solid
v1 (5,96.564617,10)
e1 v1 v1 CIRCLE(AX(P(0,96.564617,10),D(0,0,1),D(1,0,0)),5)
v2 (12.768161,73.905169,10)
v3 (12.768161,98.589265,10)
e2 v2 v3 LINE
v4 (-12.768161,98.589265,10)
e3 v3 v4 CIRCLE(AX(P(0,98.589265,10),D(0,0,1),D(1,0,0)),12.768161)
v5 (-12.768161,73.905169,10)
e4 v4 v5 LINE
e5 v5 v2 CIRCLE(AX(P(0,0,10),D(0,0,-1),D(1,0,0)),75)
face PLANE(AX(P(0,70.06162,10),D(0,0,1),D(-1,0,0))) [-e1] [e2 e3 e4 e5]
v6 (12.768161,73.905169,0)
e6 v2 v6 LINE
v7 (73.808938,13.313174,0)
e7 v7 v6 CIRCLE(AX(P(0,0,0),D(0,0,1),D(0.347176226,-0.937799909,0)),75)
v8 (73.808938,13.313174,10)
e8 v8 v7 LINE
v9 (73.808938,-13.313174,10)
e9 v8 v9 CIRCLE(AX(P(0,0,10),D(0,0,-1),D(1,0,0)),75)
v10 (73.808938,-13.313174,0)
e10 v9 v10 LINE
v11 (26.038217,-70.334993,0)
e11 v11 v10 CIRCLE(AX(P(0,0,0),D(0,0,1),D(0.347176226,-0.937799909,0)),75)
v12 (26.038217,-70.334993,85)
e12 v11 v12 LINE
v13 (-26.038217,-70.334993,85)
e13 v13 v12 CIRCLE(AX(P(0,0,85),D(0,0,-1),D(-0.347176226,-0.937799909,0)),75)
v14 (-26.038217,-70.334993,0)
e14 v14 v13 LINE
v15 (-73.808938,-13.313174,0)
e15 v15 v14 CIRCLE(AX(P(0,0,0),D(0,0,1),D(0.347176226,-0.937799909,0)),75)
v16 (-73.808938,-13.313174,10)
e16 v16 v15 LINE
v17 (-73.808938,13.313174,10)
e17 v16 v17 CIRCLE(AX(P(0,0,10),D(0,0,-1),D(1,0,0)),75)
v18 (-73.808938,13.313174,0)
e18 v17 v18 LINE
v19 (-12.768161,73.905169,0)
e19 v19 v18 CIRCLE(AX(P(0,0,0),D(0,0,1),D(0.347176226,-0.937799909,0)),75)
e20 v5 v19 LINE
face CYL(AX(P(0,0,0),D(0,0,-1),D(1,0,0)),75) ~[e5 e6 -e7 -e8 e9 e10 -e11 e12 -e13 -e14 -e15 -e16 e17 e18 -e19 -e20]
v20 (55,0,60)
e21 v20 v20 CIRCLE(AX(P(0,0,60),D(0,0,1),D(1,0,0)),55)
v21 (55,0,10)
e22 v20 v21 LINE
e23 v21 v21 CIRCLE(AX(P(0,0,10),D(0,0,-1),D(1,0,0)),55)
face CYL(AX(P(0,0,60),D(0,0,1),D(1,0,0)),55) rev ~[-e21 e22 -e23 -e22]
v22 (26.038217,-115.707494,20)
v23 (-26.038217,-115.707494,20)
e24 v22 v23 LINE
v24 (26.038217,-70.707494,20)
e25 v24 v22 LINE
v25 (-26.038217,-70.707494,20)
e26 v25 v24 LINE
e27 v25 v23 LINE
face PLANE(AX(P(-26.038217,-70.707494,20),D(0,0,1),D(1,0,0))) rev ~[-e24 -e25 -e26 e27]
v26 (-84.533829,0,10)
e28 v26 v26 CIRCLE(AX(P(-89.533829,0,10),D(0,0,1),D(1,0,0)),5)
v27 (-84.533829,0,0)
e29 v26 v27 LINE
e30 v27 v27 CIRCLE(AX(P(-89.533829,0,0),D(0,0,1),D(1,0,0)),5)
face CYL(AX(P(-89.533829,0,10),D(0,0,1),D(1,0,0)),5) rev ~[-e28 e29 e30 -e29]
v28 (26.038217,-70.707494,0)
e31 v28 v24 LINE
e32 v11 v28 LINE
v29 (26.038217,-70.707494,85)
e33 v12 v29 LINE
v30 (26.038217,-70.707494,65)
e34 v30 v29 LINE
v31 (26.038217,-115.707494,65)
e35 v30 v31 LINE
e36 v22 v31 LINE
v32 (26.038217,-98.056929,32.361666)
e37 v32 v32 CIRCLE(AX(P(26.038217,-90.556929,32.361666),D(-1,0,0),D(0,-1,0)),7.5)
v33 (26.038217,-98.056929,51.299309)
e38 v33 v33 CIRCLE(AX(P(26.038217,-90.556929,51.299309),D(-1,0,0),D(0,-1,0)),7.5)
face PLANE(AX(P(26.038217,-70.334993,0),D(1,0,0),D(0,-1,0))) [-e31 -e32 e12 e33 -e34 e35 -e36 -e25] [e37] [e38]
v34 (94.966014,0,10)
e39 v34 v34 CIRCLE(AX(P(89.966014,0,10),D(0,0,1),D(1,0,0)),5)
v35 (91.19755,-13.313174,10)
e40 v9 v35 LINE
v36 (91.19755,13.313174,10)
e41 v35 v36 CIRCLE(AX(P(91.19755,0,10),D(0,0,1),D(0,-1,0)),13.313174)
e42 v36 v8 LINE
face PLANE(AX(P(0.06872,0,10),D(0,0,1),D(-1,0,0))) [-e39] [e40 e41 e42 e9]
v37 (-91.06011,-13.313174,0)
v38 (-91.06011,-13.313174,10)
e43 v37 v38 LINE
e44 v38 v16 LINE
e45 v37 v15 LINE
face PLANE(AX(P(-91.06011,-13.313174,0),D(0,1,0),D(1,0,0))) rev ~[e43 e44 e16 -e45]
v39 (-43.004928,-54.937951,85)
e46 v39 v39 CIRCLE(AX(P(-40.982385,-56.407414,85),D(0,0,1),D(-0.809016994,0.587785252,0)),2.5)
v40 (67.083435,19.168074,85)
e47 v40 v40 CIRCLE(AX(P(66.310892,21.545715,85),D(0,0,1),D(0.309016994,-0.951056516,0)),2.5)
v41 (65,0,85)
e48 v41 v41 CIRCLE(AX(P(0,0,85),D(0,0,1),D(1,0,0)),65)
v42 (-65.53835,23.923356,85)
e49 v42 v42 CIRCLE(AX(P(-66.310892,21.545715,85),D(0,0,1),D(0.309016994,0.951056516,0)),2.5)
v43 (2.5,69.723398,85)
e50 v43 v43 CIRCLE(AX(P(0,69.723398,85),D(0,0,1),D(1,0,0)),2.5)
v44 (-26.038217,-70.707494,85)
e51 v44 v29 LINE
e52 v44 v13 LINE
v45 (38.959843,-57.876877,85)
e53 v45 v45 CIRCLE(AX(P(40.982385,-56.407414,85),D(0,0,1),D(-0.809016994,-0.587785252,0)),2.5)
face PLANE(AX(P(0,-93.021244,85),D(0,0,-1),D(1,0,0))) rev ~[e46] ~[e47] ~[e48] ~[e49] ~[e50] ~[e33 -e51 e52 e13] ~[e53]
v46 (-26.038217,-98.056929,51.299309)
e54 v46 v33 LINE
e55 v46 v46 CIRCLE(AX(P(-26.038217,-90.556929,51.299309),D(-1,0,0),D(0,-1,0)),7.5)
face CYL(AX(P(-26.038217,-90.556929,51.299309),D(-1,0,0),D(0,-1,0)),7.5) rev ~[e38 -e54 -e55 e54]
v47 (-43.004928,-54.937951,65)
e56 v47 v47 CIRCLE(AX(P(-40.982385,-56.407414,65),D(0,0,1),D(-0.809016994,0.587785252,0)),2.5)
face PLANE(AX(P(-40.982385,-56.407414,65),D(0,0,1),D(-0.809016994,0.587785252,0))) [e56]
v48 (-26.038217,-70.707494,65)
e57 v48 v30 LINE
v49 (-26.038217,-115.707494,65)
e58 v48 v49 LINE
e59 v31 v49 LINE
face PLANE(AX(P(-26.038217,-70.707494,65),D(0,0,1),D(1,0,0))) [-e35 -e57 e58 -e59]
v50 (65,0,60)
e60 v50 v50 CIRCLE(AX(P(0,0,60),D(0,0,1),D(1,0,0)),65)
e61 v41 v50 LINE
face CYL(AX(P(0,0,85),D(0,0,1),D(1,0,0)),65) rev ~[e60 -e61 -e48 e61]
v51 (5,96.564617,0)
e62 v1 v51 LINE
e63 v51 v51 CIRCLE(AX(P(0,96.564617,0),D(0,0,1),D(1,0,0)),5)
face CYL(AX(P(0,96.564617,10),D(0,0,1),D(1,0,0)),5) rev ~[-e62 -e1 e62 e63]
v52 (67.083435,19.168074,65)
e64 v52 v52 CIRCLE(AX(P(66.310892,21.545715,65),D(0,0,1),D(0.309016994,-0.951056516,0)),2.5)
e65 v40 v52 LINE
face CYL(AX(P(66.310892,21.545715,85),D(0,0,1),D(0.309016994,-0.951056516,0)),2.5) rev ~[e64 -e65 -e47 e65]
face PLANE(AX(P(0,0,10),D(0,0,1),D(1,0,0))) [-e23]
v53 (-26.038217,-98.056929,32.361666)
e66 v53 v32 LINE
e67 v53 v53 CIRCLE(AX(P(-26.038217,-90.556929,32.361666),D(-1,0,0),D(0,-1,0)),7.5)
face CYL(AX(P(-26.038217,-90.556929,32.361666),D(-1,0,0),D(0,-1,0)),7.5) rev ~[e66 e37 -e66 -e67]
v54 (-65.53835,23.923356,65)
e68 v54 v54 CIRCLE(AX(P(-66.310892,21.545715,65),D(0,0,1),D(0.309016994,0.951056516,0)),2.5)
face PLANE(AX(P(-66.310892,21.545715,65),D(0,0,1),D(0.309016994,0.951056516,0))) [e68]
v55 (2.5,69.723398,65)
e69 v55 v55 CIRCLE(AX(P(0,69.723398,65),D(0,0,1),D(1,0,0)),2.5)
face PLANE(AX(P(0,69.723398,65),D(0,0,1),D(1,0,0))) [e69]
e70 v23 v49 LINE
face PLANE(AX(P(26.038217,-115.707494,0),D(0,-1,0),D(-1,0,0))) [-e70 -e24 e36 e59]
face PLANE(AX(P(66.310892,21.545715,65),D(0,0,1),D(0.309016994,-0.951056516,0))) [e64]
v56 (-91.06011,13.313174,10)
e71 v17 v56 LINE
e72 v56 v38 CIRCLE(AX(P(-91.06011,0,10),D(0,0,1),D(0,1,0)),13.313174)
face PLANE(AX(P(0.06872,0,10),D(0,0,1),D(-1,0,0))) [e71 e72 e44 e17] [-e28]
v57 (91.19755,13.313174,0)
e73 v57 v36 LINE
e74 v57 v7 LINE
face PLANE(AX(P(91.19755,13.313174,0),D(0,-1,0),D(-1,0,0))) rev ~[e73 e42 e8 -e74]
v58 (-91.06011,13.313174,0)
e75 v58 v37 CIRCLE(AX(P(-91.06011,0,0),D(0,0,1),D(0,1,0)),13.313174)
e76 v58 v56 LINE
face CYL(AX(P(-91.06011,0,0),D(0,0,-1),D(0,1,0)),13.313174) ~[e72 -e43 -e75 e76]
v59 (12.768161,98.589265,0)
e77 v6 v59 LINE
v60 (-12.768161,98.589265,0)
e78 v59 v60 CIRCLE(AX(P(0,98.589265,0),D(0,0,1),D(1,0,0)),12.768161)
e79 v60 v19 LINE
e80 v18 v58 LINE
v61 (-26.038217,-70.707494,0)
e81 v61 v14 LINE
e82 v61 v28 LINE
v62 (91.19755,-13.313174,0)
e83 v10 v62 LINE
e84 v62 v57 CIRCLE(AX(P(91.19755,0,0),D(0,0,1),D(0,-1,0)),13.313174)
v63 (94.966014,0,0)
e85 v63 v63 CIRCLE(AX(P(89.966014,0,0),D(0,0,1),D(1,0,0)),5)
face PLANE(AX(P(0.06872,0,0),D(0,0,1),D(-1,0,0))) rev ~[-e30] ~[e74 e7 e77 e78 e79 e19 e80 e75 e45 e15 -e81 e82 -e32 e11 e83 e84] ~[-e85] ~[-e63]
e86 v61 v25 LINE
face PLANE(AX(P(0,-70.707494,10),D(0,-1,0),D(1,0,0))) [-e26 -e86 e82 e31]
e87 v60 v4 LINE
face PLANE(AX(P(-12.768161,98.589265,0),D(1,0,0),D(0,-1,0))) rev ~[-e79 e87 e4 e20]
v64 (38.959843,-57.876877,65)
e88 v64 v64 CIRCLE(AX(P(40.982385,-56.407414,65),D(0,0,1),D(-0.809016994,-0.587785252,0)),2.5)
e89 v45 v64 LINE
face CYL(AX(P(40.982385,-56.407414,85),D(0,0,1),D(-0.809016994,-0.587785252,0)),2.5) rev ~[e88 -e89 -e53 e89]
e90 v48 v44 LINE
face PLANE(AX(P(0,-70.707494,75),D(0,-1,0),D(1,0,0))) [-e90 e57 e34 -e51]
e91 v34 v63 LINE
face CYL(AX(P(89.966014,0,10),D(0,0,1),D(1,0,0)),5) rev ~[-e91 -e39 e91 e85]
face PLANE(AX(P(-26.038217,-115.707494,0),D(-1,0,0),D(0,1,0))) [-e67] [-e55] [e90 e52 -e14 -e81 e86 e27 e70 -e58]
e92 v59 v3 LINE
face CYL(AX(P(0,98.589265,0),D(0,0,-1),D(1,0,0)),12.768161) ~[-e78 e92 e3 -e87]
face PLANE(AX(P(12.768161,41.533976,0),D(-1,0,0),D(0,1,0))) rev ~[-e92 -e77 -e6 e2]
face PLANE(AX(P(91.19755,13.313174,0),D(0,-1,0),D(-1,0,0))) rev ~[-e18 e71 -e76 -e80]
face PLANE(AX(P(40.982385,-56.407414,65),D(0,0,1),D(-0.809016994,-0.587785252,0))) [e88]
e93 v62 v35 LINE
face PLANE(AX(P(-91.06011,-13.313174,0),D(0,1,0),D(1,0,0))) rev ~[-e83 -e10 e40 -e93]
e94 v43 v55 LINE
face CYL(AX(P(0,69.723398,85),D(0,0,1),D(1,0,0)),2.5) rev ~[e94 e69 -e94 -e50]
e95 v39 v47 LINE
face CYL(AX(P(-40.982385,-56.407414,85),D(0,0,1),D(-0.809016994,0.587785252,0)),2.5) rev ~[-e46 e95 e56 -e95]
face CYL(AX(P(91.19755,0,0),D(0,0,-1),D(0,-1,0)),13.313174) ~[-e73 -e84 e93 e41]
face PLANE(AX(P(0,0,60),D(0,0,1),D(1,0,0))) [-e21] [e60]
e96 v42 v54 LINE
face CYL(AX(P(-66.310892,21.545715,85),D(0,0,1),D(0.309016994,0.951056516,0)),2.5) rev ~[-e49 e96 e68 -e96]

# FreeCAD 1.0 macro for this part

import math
import FreeCAD as App
import Part
import Sketcher
Q = App.Units.Quantity


def add_polygon(sketch, points):
    """Adds a closed chain of lines whose ends are joined by coincident constraints."""
    first, n = sketch.GeometryCount, len(points)
    for a, b in zip(points, points[1:] + points[:1]):
        sketch.addGeometry(Part.LineSegment(App.Vector(*a, 0), App.Vector(*b, 0)), False)
    for i in range(n):
        sketch.addConstraint(Sketcher.Constraint("Coincident", first + i, 2, first + (i + 1) % n, 1))

doc = App.newDocument("Part")
body = doc.addObject("PartDesign::Body", "Body")

# Sketch on XY plane
sketch1 = body.newObject("Sketcher::SketchObject", "Sketch")
sketch1.AttachmentSupport = (doc.getObject("XY_Plane"), [""])
sketch1.MapMode = "FlatFace"
sketch1.addGeometry(Part.Circle(App.Vector(0, 0, 0), App.Vector(0, 0, 1), 75), False)
sketch1.addConstraint(Sketcher.Constraint("Coincident", 0, 3, -1, 1))
sketch1.addConstraint(Sketcher.Constraint("Diameter", 0, Q("150 mm")))
pad1 = body.newObject("PartDesign::Pad", "Pad")
pad1.Profile = sketch1
pad1.Length = 85

# Sketch on XY plane
sketch2 = body.newObject("Sketcher::SketchObject", "Sketch001")
sketch2.AttachmentSupport = (doc.getObject("XY_Plane"), [""])
sketch2.MapMode = "FlatFace"
sketch2.AttachmentOffset = App.Placement(App.Vector(0, 0, 85), App.Rotation())
sketch2.addGeometry(Part.Circle(App.Vector(0, 0, 0), App.Vector(0, 0, 1), 65), False)
sketch2.addConstraint(Sketcher.Constraint("Coincident", 0, 3, -1, 1))
sketch2.addConstraint(Sketcher.Constraint("Diameter", 0, Q("130 mm")))
pocket1 = body.newObject("PartDesign::Pocket", "Pocket")
pocket1.Profile = sketch2
pocket1.Length = 25

# Sketch on XY plane
sketch3 = body.newObject("Sketcher::SketchObject", "Sketch002")
sketch3.AttachmentSupport = (doc.getObject("XY_Plane"), [""])
sketch3.MapMode = "FlatFace"
sketch3.AttachmentOffset = App.Placement(App.Vector(0, 0, 60), App.Rotation())
sketch3.addGeometry(Part.Circle(App.Vector(0, 0, 0), App.Vector(0, 0, 1), 55), False)
sketch3.addConstraint(Sketcher.Constraint("Coincident", 0, 3, -1, 1))
sketch3.addConstraint(Sketcher.Constraint("Diameter", 0, Q("110 mm")))
pocket2 = body.newObject("PartDesign::Pocket", "Pocket001")
pocket2.Profile = sketch3
pocket2.Length = 50

# Sketch on XY plane
sketch4 = body.newObject("Sketcher::SketchObject", "Sketch003")
sketch4.AttachmentSupport = (doc.getObject("XY_Plane"), [""])
sketch4.MapMode = "FlatFace"
sketch4.AttachmentOffset = App.Placement(App.Vector(0, 0, 85), App.Rotation())
sketch4.addGeometry(Part.Circle(App.Vector(0, 69.7, 0), App.Vector(0, 0, 1), 2.5), False)
sketch4.addConstraint(Sketcher.Constraint("PointOnObject", 0, 3, -2))
sketch4.addConstraint(Sketcher.Constraint("Diameter", 0, Q("5 mm")))
sketch4.addConstraint(Sketcher.Constraint("DistanceY", -1, 1, 0, 3, Q("69.723398 mm")))
pocket3 = body.newObject("PartDesign::Pocket", "Pocket002")
pocket3.Profile = sketch4
pocket3.Length = 20
doc.recompute()

polarpattern = body.newObject("PartDesign::PolarPattern", "PolarPattern")
polarpattern.Originals = [pocket3]
polarpattern.Axis = (doc.getObject("Z_Axis"), [""])
polarpattern.Angle = 360
polarpattern.Occurrences = 5
body.Tip = polarpattern

# Sketch on XY plane
sketch5 = body.newObject("Sketcher::SketchObject", "Sketch004")
sketch5.AttachmentSupport = (doc.getObject("XY_Plane"), [""])
sketch5.MapMode = "FlatFace"
add_polygon(sketch5, [(26, -70), (26, -116), (-26, -116), (-26, -70)])  # lines 0-3
sketch5.addConstraint(Sketcher.Constraint("Vertical", 0))
sketch5.addConstraint(Sketcher.Constraint("Horizontal", 1))
sketch5.addConstraint(Sketcher.Constraint("Vertical", 2))
sketch5.addConstraint(Sketcher.Constraint("Horizontal", 3))
sketch5.addConstraint(Sketcher.Constraint("DistanceY", 0, 2, 0, 1, Q("45.372501 mm")))
sketch5.addConstraint(Sketcher.Constraint("DistanceX", 1, 2, 1, 1, Q("52.076434 mm")))
sketch5.addConstraint(Sketcher.Constraint("DistanceX", -1, 1, 0, 2, Q("26.038217 mm")))
sketch5.addConstraint(Sketcher.Constraint("DistanceY", 0, 2, -1, 1, Q("115.707494 mm")))
pad2 = body.newObject("PartDesign::Pad", "Pad001")
pad2.Profile = sketch5
pad2.Length = 85

# Sketch on XZ plane
sketch6 = body.newObject("Sketcher::SketchObject", "Sketch005")
sketch6.AttachmentSupport = (doc.getObject("XZ_Plane"), [""])
sketch6.MapMode = "FlatFace"
sketch6.AttachmentOffset = App.Placement(App.Vector(0, 0, 115.707494), App.Rotation())
add_polygon(sketch6, [(-26, 85), (-26, 65), (26, 65), (26, 85)])  # lines 0-3
add_polygon(sketch6, [(-26, 20), (-26, 0), (26, 0), (26, 20)])  # lines 4-7
sketch6.addConstraint(Sketcher.Constraint("Vertical", 0))
sketch6.addConstraint(Sketcher.Constraint("Horizontal", 1))
sketch6.addConstraint(Sketcher.Constraint("Vertical", 2))
sketch6.addConstraint(Sketcher.Constraint("Horizontal", 3))
sketch6.addConstraint(Sketcher.Constraint("Vertical", 4))
sketch6.addConstraint(Sketcher.Constraint("Horizontal", 5))
sketch6.addConstraint(Sketcher.Constraint("Vertical", 6))
sketch6.addConstraint(Sketcher.Constraint("Horizontal", 7))
sketch6.addConstraint(Sketcher.Constraint("Symmetric", 4, 2, 5, 2, -1, 1))
sketch6.addConstraint(Sketcher.Constraint("Vertical", 3, 2, 4, 2))
sketch6.addConstraint(Sketcher.Constraint("Vertical", 2, 2, 5, 2))
sketch6.addConstraint(Sketcher.Constraint("Equal", 2, 4))
sketch6.addConstraint(Sketcher.Constraint("DistanceY", 0, 2, 0, 1, Q("20 mm")))
sketch6.addConstraint(Sketcher.Constraint("DistanceY", -1, 1, 0, 2, Q("65 mm")))
sketch6.addConstraint(Sketcher.Constraint("DistanceX", 1, 1, 1, 2, Q("52.076434 mm")))
pocket4 = body.newObject("PartDesign::Pocket", "Pocket003")
pocket4.Profile = sketch6
pocket4.Type = "TwoLengths"
pocket4.Length = 222.85434
pocket4.Length2 = 45
pocket4.Reversed = True

# Sketch on YZ plane
sketch7 = body.newObject("Sketcher::SketchObject", "Sketch006")
sketch7.AttachmentSupport = (doc.getObject("YZ_Plane"), [""])
sketch7.MapMode = "FlatFace"
sketch7.AttachmentOffset = App.Placement(App.Vector(0, 0, -26.038217), App.Rotation())
sketch7.addGeometry(Part.Circle(App.Vector(-91, 51, 0), App.Vector(0, 0, 1), 8), False)
sketch7.addGeometry(Part.Circle(App.Vector(-91, 32, 0), App.Vector(0, 0, 1), 8), False)
sketch7.addConstraint(Sketcher.Constraint("Equal", 0, 1))
sketch7.addConstraint(Sketcher.Constraint("Vertical", 0, 3, 1, 3))
sketch7.addConstraint(Sketcher.Constraint("Diameter", 0, Q("15 mm")))
sketch7.addConstraint(Sketcher.Constraint("DistanceX", 0, 3, -1, 1, Q("90.556929 mm")))
sketch7.addConstraint(Sketcher.Constraint("DistanceY", -1, 1, 0, 3, Q("51.299309 mm")))
sketch7.addConstraint(Sketcher.Constraint("DistanceY", -1, 1, 1, 3, Q("32.361666 mm")))
pocket5 = body.newObject("PartDesign::Pocket", "Pocket004")
pocket5.Profile = sketch7
pocket5.Type = "ThroughAll"
pocket5.Reversed = True

# Sketch on XY plane
sketch8 = body.newObject("Sketcher::SketchObject", "Sketch007")
sketch8.AttachmentSupport = (doc.getObject("XY_Plane"), [""])
sketch8.MapMode = "FlatFace"
sketch8.addGeometry(Part.LineSegment(App.Vector(91, -13, 0), App.Vector(-91, -13, 0)), False)
sketch8.addGeometry(Part.ArcOfCircle(Part.Circle(App.Vector(-91, 0, 0), App.Vector(0, 0, 1), 13), math.radians(90), math.radians(270)), False)
sketch8.addGeometry(Part.LineSegment(App.Vector(-91, 13, 0), App.Vector(91, 13, 0)), False)
sketch8.addGeometry(Part.ArcOfCircle(Part.Circle(App.Vector(91, 0, 0), App.Vector(0, 0, 1), 13), math.radians(-90), math.radians(90)), False)
sketch8.addConstraint(Sketcher.Constraint("Tangent", 0, 2, 1, 2))
sketch8.addConstraint(Sketcher.Constraint("Tangent", 1, 1, 2, 1))
sketch8.addConstraint(Sketcher.Constraint("Tangent", 2, 2, 3, 2))
sketch8.addConstraint(Sketcher.Constraint("Tangent", 3, 1, 0, 1))
sketch8.addConstraint(Sketcher.Constraint("Horizontal", 0))
sketch8.addConstraint(Sketcher.Constraint("Horizontal", 2))
sketch8.addConstraint(Sketcher.Constraint("PointOnObject", 1, 3, -1))
sketch8.addConstraint(Sketcher.Constraint("Radius", 1, Q("13.313174 mm")))
sketch8.addConstraint(Sketcher.Constraint("DistanceX", 0, 2, 0, 1, Q("182.25766 mm")))
sketch8.addConstraint(Sketcher.Constraint("DistanceX", 1, 3, -1, 1, Q("91.06011 mm")))
pad3 = body.newObject("PartDesign::Pad", "Pad002")
pad3.Profile = sketch8
pad3.Length = 10

# Sketch on XY plane
sketch9 = body.newObject("Sketcher::SketchObject", "Sketch008")
sketch9.AttachmentSupport = (doc.getObject("XY_Plane"), [""])
sketch9.MapMode = "FlatFace"
sketch9.addGeometry(Part.LineSegment(App.Vector(13, 99, 0), App.Vector(13, 42, 0)), False)
sketch9.addGeometry(Part.ArcOfCircle(Part.Circle(App.Vector(0, 42, 0), App.Vector(0, 0, 1), 13), math.radians(180), math.radians(360)), False)
sketch9.addGeometry(Part.LineSegment(App.Vector(-13, 42, 0), App.Vector(-13, 99, 0)), False)
sketch9.addGeometry(Part.ArcOfCircle(Part.Circle(App.Vector(0, 99, 0), App.Vector(0, 0, 1), 13), math.radians(0), math.radians(180)), False)
sketch9.addConstraint(Sketcher.Constraint("Tangent", 0, 2, 1, 2))
sketch9.addConstraint(Sketcher.Constraint("Tangent", 1, 1, 2, 1))
sketch9.addConstraint(Sketcher.Constraint("Tangent", 2, 2, 3, 2))
sketch9.addConstraint(Sketcher.Constraint("Tangent", 3, 1, 0, 1))
sketch9.addConstraint(Sketcher.Constraint("Vertical", 0))
sketch9.addConstraint(Sketcher.Constraint("Vertical", 2))
sketch9.addConstraint(Sketcher.Constraint("PointOnObject", 1, 3, -2))
sketch9.addConstraint(Sketcher.Constraint("Radius", 1, Q("12.768161 mm")))
sketch9.addConstraint(Sketcher.Constraint("DistanceY", 0, 2, 0, 1, Q("57.055289 mm")))
sketch9.addConstraint(Sketcher.Constraint("DistanceY", -1, 1, 1, 3, Q("41.533976 mm")))
pad4 = body.newObject("PartDesign::Pad", "Pad003")
pad4.Profile = sketch9
pad4.Length = 10

# Sketch on XY plane
sketch10 = body.newObject("Sketcher::SketchObject", "Sketch009")
sketch10.AttachmentSupport = (doc.getObject("XY_Plane"), [""])
sketch10.MapMode = "FlatFace"
sketch10.AttachmentOffset = App.Placement(App.Vector(0, 0, 10), App.Rotation())
sketch10.addGeometry(Part.Circle(App.Vector(-90, 0, 0), App.Vector(0, 0, 1), 5), False)
sketch10.addGeometry(Part.Circle(App.Vector(0, 97, 0), App.Vector(0, 0, 1), 5), False)
sketch10.addGeometry(Part.Circle(App.Vector(90, 0, 0), App.Vector(0, 0, 1), 5), False)
sketch10.addConstraint(Sketcher.Constraint("Equal", 0, 1))
sketch10.addConstraint(Sketcher.Constraint("Equal", 1, 2))
sketch10.addConstraint(Sketcher.Constraint("PointOnObject", 0, 3, -1))
sketch10.addConstraint(Sketcher.Constraint("PointOnObject", 1, 3, -2))
sketch10.addConstraint(Sketcher.Constraint("PointOnObject", 2, 3, -1))
sketch10.addConstraint(Sketcher.Constraint("Diameter", 0, Q("10 mm")))
sketch10.addConstraint(Sketcher.Constraint("DistanceX", 0, 3, -1, 1, Q("89.533829 mm")))
sketch10.addConstraint(Sketcher.Constraint("DistanceY", -1, 1, 1, 3, Q("96.564617 mm")))
sketch10.addConstraint(Sketcher.Constraint("DistanceX", -1, 1, 2, 3, Q("89.966014 mm")))
pocket6 = body.newObject("PartDesign::Pocket", "Pocket005")
pocket6.Profile = sketch10
pocket6.Length = 10

doc.recompute()
